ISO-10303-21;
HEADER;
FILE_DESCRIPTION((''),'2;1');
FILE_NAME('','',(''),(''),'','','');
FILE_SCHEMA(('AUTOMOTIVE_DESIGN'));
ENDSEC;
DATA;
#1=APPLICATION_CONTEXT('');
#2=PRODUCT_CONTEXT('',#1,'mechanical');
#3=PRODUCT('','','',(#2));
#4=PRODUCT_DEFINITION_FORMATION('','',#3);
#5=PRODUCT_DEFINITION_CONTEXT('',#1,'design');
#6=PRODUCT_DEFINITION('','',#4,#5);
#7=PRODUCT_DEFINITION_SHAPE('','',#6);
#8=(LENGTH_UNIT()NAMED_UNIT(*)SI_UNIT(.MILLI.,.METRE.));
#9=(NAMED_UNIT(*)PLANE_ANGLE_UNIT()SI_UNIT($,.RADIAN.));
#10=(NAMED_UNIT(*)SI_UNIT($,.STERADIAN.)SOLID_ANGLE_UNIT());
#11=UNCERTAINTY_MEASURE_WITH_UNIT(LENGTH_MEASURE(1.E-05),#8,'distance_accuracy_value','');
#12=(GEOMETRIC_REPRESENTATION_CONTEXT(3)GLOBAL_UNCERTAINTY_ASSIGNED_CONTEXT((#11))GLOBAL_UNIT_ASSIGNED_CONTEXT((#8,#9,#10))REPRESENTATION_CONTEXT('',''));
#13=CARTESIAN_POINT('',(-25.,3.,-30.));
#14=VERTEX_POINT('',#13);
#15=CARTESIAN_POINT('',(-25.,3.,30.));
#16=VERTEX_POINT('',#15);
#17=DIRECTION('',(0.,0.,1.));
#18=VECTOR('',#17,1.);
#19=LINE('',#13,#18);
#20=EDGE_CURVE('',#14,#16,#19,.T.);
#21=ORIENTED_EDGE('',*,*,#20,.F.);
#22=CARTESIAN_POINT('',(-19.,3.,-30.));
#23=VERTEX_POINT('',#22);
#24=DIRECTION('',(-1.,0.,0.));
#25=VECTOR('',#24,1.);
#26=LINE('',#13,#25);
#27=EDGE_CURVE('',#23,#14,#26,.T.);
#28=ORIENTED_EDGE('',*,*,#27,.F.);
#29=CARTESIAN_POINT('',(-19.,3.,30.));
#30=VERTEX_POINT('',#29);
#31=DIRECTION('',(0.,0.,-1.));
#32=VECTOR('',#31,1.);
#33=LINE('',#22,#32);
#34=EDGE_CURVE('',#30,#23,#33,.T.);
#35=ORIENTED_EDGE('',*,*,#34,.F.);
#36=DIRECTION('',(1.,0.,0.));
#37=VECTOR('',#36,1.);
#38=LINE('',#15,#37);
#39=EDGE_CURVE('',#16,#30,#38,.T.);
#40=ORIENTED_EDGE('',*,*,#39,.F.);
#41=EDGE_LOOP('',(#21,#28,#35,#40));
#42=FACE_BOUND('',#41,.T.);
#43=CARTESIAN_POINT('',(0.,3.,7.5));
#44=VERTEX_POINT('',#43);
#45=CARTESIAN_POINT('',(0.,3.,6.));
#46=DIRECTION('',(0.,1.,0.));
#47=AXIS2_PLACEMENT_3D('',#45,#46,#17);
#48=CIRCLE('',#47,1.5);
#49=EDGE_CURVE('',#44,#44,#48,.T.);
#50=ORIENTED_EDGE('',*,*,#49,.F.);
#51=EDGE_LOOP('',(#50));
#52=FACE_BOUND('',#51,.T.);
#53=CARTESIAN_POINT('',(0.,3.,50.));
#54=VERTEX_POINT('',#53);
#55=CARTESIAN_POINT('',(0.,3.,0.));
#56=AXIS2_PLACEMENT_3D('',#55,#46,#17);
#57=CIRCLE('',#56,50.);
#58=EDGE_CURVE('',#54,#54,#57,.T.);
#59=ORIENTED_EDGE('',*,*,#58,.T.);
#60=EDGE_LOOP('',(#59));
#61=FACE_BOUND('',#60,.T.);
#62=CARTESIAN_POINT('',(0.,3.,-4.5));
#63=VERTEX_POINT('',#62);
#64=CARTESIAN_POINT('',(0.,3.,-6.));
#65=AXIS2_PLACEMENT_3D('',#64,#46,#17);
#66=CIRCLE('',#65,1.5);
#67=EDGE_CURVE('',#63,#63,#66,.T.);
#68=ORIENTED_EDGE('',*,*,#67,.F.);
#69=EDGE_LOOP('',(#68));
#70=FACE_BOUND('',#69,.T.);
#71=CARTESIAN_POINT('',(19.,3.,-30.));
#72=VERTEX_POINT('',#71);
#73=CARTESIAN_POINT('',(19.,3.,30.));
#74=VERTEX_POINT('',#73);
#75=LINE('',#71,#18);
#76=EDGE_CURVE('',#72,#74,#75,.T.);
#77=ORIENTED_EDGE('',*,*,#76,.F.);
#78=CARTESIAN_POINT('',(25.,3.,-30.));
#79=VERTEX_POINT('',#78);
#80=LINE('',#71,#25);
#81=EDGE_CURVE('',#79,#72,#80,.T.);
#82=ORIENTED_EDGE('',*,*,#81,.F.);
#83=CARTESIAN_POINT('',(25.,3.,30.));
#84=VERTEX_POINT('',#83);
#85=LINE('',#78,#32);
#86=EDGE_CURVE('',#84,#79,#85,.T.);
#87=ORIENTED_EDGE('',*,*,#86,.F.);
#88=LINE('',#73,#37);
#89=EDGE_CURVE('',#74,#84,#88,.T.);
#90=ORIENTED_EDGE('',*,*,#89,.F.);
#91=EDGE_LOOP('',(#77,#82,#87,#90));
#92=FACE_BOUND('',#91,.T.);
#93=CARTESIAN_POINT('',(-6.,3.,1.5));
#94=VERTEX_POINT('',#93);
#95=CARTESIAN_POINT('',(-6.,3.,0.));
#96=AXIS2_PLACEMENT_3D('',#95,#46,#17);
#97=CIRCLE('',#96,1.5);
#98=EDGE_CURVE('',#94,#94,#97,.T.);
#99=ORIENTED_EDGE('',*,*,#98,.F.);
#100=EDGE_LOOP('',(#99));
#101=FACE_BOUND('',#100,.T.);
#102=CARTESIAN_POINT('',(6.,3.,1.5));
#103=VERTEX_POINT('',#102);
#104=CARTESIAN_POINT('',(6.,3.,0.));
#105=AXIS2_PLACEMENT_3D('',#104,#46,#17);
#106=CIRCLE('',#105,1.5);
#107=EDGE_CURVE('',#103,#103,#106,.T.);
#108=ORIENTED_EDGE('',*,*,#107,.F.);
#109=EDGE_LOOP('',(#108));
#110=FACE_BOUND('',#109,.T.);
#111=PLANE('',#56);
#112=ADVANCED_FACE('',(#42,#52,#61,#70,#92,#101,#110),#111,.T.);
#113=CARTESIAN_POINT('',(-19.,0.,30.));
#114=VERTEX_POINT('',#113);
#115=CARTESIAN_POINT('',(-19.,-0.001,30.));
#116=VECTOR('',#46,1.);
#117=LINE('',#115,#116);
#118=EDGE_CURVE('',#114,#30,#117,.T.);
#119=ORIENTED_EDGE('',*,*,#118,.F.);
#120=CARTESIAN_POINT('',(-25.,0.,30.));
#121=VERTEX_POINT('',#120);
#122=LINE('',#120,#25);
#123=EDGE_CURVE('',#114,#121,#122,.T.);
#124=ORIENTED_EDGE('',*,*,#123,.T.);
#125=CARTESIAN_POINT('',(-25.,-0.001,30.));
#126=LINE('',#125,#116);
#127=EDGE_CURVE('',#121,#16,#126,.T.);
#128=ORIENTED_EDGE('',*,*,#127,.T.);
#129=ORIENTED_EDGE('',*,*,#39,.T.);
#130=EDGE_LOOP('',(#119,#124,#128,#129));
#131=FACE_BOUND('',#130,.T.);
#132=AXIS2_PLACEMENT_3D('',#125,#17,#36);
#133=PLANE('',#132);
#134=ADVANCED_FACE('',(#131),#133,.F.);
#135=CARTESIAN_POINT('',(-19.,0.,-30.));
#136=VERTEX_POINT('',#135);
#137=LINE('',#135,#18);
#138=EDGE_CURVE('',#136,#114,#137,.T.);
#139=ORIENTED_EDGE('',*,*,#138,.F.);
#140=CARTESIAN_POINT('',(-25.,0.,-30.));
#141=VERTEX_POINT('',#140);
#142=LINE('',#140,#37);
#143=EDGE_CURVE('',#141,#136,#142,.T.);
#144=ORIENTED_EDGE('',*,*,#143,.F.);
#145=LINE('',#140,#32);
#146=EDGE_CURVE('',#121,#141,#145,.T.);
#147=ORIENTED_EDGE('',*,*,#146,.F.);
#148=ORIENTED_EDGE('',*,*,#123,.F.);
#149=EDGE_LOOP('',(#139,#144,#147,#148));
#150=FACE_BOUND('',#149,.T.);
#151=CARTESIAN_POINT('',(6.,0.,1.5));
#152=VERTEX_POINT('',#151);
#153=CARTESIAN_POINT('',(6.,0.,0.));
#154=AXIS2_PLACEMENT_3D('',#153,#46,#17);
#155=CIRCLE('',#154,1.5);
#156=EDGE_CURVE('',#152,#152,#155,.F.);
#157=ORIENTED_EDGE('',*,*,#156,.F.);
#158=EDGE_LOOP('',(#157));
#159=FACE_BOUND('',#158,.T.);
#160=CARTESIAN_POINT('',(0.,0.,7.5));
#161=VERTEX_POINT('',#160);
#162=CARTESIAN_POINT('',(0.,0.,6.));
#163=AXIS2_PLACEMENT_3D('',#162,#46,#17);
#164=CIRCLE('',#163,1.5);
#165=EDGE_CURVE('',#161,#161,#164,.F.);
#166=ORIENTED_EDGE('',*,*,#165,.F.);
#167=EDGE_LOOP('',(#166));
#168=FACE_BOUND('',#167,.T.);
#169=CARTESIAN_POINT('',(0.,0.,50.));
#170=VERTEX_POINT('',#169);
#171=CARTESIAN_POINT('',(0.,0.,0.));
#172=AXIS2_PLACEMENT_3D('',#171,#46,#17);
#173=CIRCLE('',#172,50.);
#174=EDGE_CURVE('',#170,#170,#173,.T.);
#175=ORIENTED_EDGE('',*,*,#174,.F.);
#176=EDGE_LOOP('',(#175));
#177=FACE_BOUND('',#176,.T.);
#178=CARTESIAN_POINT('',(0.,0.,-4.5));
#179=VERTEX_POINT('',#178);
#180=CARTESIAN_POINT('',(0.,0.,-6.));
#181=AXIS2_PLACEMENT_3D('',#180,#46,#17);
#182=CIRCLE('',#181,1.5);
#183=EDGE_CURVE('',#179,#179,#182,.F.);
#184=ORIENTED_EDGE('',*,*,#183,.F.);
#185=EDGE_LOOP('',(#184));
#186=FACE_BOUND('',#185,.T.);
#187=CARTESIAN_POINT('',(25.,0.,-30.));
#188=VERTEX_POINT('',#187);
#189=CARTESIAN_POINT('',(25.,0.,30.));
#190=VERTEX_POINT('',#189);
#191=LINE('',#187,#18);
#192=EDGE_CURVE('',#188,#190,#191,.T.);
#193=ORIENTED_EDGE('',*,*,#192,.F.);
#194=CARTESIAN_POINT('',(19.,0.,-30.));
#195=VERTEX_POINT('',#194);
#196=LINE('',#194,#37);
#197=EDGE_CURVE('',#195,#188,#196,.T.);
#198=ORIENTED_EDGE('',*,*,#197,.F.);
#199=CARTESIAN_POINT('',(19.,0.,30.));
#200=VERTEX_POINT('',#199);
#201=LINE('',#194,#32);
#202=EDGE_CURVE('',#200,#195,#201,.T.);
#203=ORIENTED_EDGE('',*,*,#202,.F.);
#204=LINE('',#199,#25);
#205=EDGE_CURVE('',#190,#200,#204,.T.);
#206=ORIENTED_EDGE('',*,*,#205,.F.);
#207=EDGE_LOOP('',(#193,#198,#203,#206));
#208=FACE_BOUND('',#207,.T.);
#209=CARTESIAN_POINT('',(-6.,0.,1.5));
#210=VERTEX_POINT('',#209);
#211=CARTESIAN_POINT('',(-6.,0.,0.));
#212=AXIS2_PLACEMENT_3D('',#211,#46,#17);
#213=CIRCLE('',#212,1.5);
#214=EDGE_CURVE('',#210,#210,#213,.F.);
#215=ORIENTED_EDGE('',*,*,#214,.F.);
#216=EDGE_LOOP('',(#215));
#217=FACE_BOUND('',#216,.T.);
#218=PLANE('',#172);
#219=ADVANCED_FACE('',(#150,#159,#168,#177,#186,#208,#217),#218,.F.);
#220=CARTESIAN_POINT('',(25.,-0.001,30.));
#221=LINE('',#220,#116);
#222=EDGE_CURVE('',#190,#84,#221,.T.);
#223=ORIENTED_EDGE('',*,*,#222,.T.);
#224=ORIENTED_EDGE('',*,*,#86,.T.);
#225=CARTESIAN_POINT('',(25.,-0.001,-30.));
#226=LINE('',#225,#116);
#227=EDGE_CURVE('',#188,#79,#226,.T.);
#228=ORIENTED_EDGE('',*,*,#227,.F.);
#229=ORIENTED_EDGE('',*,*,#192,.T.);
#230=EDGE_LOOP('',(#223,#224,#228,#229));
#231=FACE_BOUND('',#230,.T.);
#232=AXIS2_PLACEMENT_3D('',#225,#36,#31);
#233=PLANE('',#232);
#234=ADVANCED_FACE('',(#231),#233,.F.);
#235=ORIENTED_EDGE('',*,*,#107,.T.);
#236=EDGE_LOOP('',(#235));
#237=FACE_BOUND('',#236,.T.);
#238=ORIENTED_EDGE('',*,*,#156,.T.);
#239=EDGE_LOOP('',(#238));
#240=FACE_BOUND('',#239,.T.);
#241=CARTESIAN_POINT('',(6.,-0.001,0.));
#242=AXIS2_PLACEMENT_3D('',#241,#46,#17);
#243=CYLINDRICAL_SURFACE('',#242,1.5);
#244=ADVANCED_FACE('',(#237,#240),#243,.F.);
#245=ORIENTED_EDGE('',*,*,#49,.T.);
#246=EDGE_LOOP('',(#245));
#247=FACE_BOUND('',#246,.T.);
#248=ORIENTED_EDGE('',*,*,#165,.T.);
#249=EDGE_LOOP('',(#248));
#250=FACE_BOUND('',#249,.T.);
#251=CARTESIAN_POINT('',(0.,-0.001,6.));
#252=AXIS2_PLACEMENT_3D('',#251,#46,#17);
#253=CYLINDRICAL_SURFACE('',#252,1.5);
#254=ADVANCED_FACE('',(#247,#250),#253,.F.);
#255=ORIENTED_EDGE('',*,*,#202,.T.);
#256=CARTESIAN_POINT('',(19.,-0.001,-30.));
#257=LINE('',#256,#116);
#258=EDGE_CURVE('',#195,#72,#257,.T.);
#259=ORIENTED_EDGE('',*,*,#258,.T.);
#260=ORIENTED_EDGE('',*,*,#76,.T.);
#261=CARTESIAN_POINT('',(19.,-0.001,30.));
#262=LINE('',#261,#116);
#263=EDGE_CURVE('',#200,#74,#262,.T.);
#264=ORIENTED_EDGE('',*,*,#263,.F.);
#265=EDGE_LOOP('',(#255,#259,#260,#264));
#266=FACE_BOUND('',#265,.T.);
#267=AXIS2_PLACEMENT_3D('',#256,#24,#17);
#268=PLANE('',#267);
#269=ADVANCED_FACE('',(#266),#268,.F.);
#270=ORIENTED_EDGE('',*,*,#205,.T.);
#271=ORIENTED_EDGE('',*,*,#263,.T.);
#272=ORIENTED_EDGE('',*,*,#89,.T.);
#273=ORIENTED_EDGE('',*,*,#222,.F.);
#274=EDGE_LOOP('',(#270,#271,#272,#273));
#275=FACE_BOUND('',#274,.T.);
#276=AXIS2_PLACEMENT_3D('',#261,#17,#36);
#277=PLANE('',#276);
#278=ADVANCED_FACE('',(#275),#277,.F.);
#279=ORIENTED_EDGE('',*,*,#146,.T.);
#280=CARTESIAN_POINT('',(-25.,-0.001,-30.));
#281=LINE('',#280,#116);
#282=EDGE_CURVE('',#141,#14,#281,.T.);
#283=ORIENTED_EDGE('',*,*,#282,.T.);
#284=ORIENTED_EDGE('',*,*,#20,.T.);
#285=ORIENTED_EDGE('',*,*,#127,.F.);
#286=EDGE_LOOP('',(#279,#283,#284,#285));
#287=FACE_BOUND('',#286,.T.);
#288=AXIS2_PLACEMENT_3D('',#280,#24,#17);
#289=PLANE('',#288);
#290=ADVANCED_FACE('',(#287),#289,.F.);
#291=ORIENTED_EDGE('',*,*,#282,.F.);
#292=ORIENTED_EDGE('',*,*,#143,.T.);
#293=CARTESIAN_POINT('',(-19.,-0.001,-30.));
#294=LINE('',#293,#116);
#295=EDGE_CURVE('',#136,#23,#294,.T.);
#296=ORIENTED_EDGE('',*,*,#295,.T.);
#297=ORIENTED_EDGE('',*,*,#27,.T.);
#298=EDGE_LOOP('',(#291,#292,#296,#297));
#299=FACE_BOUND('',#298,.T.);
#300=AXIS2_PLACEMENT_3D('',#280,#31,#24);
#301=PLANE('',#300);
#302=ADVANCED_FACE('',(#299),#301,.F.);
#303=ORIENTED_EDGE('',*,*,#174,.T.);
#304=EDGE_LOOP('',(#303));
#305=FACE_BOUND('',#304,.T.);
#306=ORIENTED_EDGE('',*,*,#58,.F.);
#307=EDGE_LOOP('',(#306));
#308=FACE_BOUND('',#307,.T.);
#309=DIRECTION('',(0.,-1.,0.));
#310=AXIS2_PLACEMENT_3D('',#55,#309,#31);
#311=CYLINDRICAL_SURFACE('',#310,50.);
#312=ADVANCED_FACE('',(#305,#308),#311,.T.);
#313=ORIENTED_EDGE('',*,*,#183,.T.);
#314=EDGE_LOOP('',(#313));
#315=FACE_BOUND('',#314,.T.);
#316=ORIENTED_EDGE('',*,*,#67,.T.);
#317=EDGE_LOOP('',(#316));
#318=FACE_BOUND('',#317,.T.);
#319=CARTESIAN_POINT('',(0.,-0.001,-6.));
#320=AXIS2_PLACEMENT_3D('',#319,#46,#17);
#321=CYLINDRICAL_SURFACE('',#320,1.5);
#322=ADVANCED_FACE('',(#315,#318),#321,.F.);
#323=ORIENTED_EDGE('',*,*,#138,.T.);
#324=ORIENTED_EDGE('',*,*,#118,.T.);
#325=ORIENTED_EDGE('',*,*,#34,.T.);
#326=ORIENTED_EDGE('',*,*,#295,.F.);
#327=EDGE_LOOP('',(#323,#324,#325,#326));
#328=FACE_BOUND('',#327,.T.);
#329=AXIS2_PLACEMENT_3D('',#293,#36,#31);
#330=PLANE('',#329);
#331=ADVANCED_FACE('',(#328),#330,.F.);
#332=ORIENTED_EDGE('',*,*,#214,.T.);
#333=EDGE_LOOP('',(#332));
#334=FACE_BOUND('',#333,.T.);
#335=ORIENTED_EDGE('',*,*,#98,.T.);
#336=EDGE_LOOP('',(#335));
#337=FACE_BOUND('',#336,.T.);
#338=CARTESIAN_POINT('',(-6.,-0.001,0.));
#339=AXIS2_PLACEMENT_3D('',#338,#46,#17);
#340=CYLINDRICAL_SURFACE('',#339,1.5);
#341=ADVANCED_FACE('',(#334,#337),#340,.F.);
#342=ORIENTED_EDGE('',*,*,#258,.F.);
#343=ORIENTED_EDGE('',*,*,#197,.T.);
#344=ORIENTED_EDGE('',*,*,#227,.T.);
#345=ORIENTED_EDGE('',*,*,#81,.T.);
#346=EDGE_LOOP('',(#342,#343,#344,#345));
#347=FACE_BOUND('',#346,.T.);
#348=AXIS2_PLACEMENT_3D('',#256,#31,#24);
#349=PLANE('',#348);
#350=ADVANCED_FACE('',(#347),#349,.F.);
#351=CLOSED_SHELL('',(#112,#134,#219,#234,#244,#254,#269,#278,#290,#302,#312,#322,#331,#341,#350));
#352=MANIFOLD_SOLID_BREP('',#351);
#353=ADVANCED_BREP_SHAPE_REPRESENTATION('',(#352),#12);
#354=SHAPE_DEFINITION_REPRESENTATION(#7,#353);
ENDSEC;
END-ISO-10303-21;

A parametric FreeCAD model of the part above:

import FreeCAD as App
import Part
import Sketcher

V = App.Vector


def add_polygon(sketch, points):
    """Adds a closed chain of lines whose ends are joined by coincident constraints."""
    first, n = sketch.GeometryCount, len(points)
    for a, b in zip(points, points[1:] + points[:1]):
        sketch.addGeometry(Part.LineSegment(App.Vector(*a, 0), App.Vector(*b, 0)), False)
    for i in range(n):
        sketch.addConstraint(Sketcher.Constraint("Coincident", first + i, 2, first + (i + 1) % n, 1))

doc = App.newDocument("Part")
params = doc.addObject("Spreadsheet::Sheet", "Params")
for row, (alias, value) in enumerate([
    ("sketch1_diameter", "100 mm"),
    ("pad1_length", "3 mm"),
    ("sketch2_diameter", "3 mm"),
    ("sketch3_diameter", "3 mm"),
    ("sketch4_diameter", "3 mm"),
    ("sketch5_diameter", "3 mm"),
    ("sketch6_width", "6 mm"),
    ("sketch6_height", "60 mm"),
    ("sketch7_width", "6 mm"),
    ("sketch7_height", "60 mm"),
], start=1):
    params.set(f"A{row}", alias)
    params.set(f"B{row}", "=" + value)
    params.setAlias(f"B{row}", alias)

body = doc.addObject("PartDesign::Body", "Body")

sketch1 = doc.addObject("Sketcher::SketchObject", "Sketch")
body.addObject(sketch1)
sketch1.AttachmentSupport = (doc.XZ_Plane, [""])
sketch1.MapMode = "FlatFace"
sketch1.addGeometry(Part.Circle(V(0, 0, 0), V(0, 0, 1), 50), False)
sketch1.addConstraint([
    Sketcher.Constraint("Coincident", 0, 3, -1, 1),
    Sketcher.Constraint("Diameter", 0, 100.0),
])
sketch1.setExpression("Constraints[1]", "Params.sketch1_diameter")
pad1 = doc.addObject("PartDesign::Pad", "Pad")
body.addObject(pad1)
pad1.Profile = sketch1
pad1.setExpression("Length", "Params.pad1_length")
pad1.Reversed = True

sketch2 = doc.addObject("Sketcher::SketchObject", "Sketch001")
body.addObject(sketch2)
sketch2.AttachmentSupport = (doc.XZ_Plane, [""])
sketch2.MapMode = "FlatFace"
sketch2.AttachmentOffset = App.Placement(V(0, 0, -3), App.Rotation())
sketch2.addGeometry(Part.Circle(V(0, -6, 0), V(0, 0, 1), 1.5), False)
sketch2.addConstraint([
    Sketcher.Constraint("PointOnObject", 0, 3, -2),
    Sketcher.Constraint("Diameter", 0, 3.0),
    Sketcher.Constraint("DistanceY", 0, 3, -1, 1, 6.0),
])
sketch2.setExpression("Constraints[1]", "Params.sketch2_diameter")
pocket1 = doc.addObject("PartDesign::Pocket", "Pocket")
body.addObject(pocket1)
pocket1.Profile = sketch2
pocket1.Type = "UpToFirst"
pocket1.Reversed = True

sketch3 = doc.addObject("Sketcher::SketchObject", "Sketch002")
body.addObject(sketch3)
sketch3.AttachmentSupport = (doc.XZ_Plane, [""])
sketch3.MapMode = "FlatFace"
sketch3.AttachmentOffset = App.Placement(V(0, 0, -3), App.Rotation())
sketch3.addGeometry(Part.Circle(V(6, 0, 0), V(0, 0, 1), 1.5), False)
sketch3.addConstraint([
    Sketcher.Constraint("PointOnObject", 0, 3, -1),
    Sketcher.Constraint("Diameter", 0, 3.0),
    Sketcher.Constraint("DistanceX", -1, 1, 0, 3, 6.0),
])
sketch3.setExpression("Constraints[1]", "Params.sketch3_diameter")
pocket2 = doc.addObject("PartDesign::Pocket", "Pocket001")
body.addObject(pocket2)
pocket2.Profile = sketch3
pocket2.Type = "UpToFirst"
pocket2.Reversed = True

sketch4 = doc.addObject("Sketcher::SketchObject", "Sketch003")
body.addObject(sketch4)
sketch4.AttachmentSupport = (doc.XZ_Plane, [""])
sketch4.MapMode = "FlatFace"
sketch4.AttachmentOffset = App.Placement(V(0, 0, -3), App.Rotation())
sketch4.addGeometry(Part.Circle(V(0, 6, 0), V(0, 0, 1), 1.5), False)
sketch4.addConstraint([
    Sketcher.Constraint("PointOnObject", 0, 3, -2),
    Sketcher.Constraint("Diameter", 0, 3.0),
    Sketcher.Constraint("DistanceY", -1, 1, 0, 3, 6.0),
])
sketch4.setExpression("Constraints[1]", "Params.sketch4_diameter")
pocket3 = doc.addObject("PartDesign::Pocket", "Pocket002")
body.addObject(pocket3)
pocket3.Profile = sketch4
pocket3.Type = "UpToFirst"
pocket3.Reversed = True

sketch5 = doc.addObject("Sketcher::SketchObject", "Sketch004")
body.addObject(sketch5)
sketch5.AttachmentSupport = (doc.XZ_Plane, [""])
sketch5.MapMode = "FlatFace"
sketch5.AttachmentOffset = App.Placement(V(0, 0, -3), App.Rotation())
sketch5.addGeometry(Part.Circle(V(-6, 0, 0), V(0, 0, 1), 1.5), False)
sketch5.addConstraint([
    Sketcher.Constraint("PointOnObject", 0, 3, -1),
    Sketcher.Constraint("Diameter", 0, 3.0),
    Sketcher.Constraint("DistanceX", 0, 3, -1, 1, 6.0),
])
sketch5.setExpression("Constraints[1]", "Params.sketch5_diameter")
pocket4 = doc.addObject("PartDesign::Pocket", "Pocket003")
body.addObject(pocket4)
pocket4.Profile = sketch5
pocket4.Type = "UpToFirst"
pocket4.Reversed = True

sketch6 = doc.addObject("Sketcher::SketchObject", "Sketch005")
body.addObject(sketch6)
sketch6.AttachmentSupport = (doc.XZ_Plane, [""])
sketch6.MapMode = "FlatFace"
sketch6.AttachmentOffset = App.Placement(V(0, 0, -3), App.Rotation())
add_polygon(sketch6, [(19, -30), (19, 30), (25, 30), (25, -30)])
sketch6.addConstraint([
    Sketcher.Constraint("Vertical", 0),
    Sketcher.Constraint("Horizontal", 1),
    Sketcher.Constraint("Vertical", 2),
    Sketcher.Constraint("Horizontal", 3),
    Sketcher.Constraint("DistanceX", 1, 1, 1, 2, 6.0),
    Sketcher.Constraint("DistanceY", 0, 1, 0, 2, 60.0),
    Sketcher.Constraint("DistanceX", -1, 1, 0, 2, 19.0),
    Sketcher.Constraint("DistanceY", -1, 1, 0, 2, 30.0),
])
sketch6.setExpression("Constraints[8]", "Params.sketch6_width")
sketch6.setExpression("Constraints[9]", "Params.sketch6_height")
pocket5 = doc.addObject("PartDesign::Pocket", "Pocket004")
body.addObject(pocket5)
pocket5.Profile = sketch6
pocket5.Type = "UpToFirst"
pocket5.Reversed = True

sketch7 = doc.addObject("Sketcher::SketchObject", "Sketch006")
body.addObject(sketch7)
sketch7.AttachmentSupport = (doc.XZ_Plane, [""])
sketch7.MapMode = "FlatFace"
sketch7.AttachmentOffset = App.Placement(V(0, 0, -3), App.Rotation())
add_polygon(sketch7, [(-25, -30), (-25, 30), (-19, 30), (-19, -30)])
sketch7.addConstraint([
    Sketcher.Constraint("Vertical", 0),
    Sketcher.Constraint("Horizontal", 1),
    Sketcher.Constraint("Vertical", 2),
    Sketcher.Constraint("Horizontal", 3),
    Sketcher.Constraint("DistanceX", 1, 1, 1, 2, 6.0),
    Sketcher.Constraint("DistanceY", 0, 1, 0, 2, 60.0),
    Sketcher.Constraint("DistanceX", 0, 2, -1, 1, 25.0),
    Sketcher.Constraint("DistanceY", -1, 1, 0, 2, 30.0),
])
sketch7.setExpression("Constraints[8]", "Params.sketch7_width")
sketch7.setExpression("Constraints[9]", "Params.sketch7_height")
pocket6 = doc.addObject("PartDesign::Pocket", "Pocket005")
body.addObject(pocket6)
pocket6.Profile = sketch7
pocket6.Type = "UpToFirst"
pocket6.Reversed = True

doc.recompute()
